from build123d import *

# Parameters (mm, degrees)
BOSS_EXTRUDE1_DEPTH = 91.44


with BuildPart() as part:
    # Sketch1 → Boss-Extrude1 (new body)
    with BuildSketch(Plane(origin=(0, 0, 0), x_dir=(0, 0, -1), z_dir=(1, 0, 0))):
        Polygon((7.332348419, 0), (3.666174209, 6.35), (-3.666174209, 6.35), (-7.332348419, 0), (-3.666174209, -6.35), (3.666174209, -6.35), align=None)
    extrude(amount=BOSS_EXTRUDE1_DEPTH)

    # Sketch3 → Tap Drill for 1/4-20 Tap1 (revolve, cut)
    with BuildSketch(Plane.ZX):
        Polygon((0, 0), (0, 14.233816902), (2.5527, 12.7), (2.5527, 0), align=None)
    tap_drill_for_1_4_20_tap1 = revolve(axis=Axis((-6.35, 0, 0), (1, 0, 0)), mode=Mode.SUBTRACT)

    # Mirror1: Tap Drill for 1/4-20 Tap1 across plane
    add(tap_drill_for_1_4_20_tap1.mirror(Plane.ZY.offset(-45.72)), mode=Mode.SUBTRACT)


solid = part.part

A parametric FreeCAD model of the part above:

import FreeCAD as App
import Part
import Sketcher
Q = App.Units.Quantity

doc = App.newDocument("Part")
params = doc.addObject("Spreadsheet::Sheet", "Params")
for row, (alias, value) in enumerate([
    ("pad1_length", "3.6 in"),
    ("sketch2_width", "0.5 in"),
    ("groove_angle", "360 deg"),
], start=1):
    params.set(f"A{row}", alias)
    params.set(f"B{row}", "=" + value)
    params.setAlias(f"B{row}", alias)

body = doc.addObject("PartDesign::Body", "Body")

sketch1 = body.newObject("Sketcher::SketchObject", "Sketch")
sketch1.AttachmentSupport = (doc.getObject("YZ_Plane"), [""])
sketch1.MapMode = "FlatFace"
sketch1.addGeometry([
    Part.LineSegment(App.Vector(0, -7.332348, 0), App.Vector(6.35, -3.666174, 0)),
    Part.LineSegment(App.Vector(6.35, -3.666174, 0), App.Vector(6.35, 3.666174, 0)),
    Part.LineSegment(App.Vector(6.35, 3.666174, 0), App.Vector(0, 7.332348, 0)),
    Part.LineSegment(App.Vector(0, 7.332348, 0), App.Vector(-6.35, 3.666174, 0)),
    Part.LineSegment(App.Vector(-6.35, 3.666174, 0), App.Vector(-6.35, -3.666174, 0)),
    Part.LineSegment(App.Vector(-6.35, -3.666174, 0), App.Vector(0, -7.332348, 0)),
], False)
sketch1.addConstraint([
    Sketcher.Constraint("Coincident", 0, 2, 1, 1),
    Sketcher.Constraint("Coincident", 1, 2, 2, 1),
    Sketcher.Constraint("Coincident", 2, 2, 3, 1),
    Sketcher.Constraint("Coincident", 3, 2, 4, 1),
    Sketcher.Constraint("Coincident", 4, 2, 5, 1),
    Sketcher.Constraint("Coincident", 5, 2, 0, 1),
    Sketcher.Constraint("Vertical", 1),
    Sketcher.Constraint("Vertical", 4),
    Sketcher.Constraint("Symmetric", 0, 2, 3, 2, -1, 1),
    Sketcher.Constraint("Symmetric", 2, 2, 5, 2, -1, 1),
    Sketcher.Constraint("PointOnObject", 2, 2, -2),
    Sketcher.Constraint("Parallel", 2, 5),
    Sketcher.Constraint("Horizontal", 1, 2, 3, 2),
    Sketcher.Constraint("Angle", 0, Q("30 deg")),
    Sketcher.Constraint("DistanceX", 3, 2, 1, 2, Q("0.5 in")),
    Sketcher.Constraint("DistanceY", 1, 1, 1, 2, 7.332348),
])
pad1 = body.newObject("PartDesign::Pad", "Pad")
pad1.Profile = sketch1
pad1.setExpression("Length", "Params.pad1_length")

sketch2 = body.newObject("Sketcher::SketchObject", "Sketch001")
sketch2.AttachmentSupport = (doc.getObject("XZ_Plane"), [""])
sketch2.MapMode = "FlatFace"
sketch2.addGeometry([
    Part.LineSegment(App.Vector(14.233817, 0, 0), App.Vector(0, 0, 0)),
    Part.LineSegment(App.Vector(0, 0, 0), App.Vector(0, 2.5527, 0)),
    Part.LineSegment(App.Vector(0, 2.5527, 0), App.Vector(12.7, 2.5527, 0)),
    Part.LineSegment(App.Vector(12.7, 2.5527, 0), App.Vector(14.233817, 0, 0)),
], False)
sketch2.addConstraint([
    Sketcher.Constraint("Coincident", 0, 2, 1, 1),
    Sketcher.Constraint("Coincident", 1, 2, 2, 1),
    Sketcher.Constraint("Coincident", 2, 2, 3, 1),
    Sketcher.Constraint("Coincident", 3, 2, 0, 1),
    Sketcher.Constraint("Horizontal", 0),
    Sketcher.Constraint("Vertical", 1),
    Sketcher.Constraint("Horizontal", 2),
    Sketcher.Constraint("Coincident", 0, 2, -1, 1),
    Sketcher.Constraint("DistanceX", 2, 1, 2, 2, Q("0.5 in")),
    Sketcher.Constraint("Angle", 3, Q("-59 deg")),
    Sketcher.Constraint("DistanceY", 1, 1, 1, 2, Q("0.1005 in")),
])
sketch2.setExpression("Constraints[8]", "Params.sketch2_width")
groove = body.newObject("PartDesign::Groove", "Groove")
groove.Profile = sketch2
groove.ReferenceAxis = (sketch2, ["H_Axis"])
groove.setExpression("Angle", "Params.groove_angle")
doc.recompute()

datumplane = body.newObject("PartDesign::Plane", "DatumPlane")
datumplane.AttachmentSupport = (doc.getObject("YZ_Plane"), [""])
datumplane.MapMode = "FlatFace"
datumplane.AttachmentOffset = App.Placement(App.Vector(0, 0, 1.8 * 25.4), App.Rotation())
mirrored = body.newObject("PartDesign::Mirrored", "Mirrored")
mirrored.Originals = [groove]
mirrored.MirrorPlane = (datumplane, [""])
body.Tip = mirrored

doc.recompute()
